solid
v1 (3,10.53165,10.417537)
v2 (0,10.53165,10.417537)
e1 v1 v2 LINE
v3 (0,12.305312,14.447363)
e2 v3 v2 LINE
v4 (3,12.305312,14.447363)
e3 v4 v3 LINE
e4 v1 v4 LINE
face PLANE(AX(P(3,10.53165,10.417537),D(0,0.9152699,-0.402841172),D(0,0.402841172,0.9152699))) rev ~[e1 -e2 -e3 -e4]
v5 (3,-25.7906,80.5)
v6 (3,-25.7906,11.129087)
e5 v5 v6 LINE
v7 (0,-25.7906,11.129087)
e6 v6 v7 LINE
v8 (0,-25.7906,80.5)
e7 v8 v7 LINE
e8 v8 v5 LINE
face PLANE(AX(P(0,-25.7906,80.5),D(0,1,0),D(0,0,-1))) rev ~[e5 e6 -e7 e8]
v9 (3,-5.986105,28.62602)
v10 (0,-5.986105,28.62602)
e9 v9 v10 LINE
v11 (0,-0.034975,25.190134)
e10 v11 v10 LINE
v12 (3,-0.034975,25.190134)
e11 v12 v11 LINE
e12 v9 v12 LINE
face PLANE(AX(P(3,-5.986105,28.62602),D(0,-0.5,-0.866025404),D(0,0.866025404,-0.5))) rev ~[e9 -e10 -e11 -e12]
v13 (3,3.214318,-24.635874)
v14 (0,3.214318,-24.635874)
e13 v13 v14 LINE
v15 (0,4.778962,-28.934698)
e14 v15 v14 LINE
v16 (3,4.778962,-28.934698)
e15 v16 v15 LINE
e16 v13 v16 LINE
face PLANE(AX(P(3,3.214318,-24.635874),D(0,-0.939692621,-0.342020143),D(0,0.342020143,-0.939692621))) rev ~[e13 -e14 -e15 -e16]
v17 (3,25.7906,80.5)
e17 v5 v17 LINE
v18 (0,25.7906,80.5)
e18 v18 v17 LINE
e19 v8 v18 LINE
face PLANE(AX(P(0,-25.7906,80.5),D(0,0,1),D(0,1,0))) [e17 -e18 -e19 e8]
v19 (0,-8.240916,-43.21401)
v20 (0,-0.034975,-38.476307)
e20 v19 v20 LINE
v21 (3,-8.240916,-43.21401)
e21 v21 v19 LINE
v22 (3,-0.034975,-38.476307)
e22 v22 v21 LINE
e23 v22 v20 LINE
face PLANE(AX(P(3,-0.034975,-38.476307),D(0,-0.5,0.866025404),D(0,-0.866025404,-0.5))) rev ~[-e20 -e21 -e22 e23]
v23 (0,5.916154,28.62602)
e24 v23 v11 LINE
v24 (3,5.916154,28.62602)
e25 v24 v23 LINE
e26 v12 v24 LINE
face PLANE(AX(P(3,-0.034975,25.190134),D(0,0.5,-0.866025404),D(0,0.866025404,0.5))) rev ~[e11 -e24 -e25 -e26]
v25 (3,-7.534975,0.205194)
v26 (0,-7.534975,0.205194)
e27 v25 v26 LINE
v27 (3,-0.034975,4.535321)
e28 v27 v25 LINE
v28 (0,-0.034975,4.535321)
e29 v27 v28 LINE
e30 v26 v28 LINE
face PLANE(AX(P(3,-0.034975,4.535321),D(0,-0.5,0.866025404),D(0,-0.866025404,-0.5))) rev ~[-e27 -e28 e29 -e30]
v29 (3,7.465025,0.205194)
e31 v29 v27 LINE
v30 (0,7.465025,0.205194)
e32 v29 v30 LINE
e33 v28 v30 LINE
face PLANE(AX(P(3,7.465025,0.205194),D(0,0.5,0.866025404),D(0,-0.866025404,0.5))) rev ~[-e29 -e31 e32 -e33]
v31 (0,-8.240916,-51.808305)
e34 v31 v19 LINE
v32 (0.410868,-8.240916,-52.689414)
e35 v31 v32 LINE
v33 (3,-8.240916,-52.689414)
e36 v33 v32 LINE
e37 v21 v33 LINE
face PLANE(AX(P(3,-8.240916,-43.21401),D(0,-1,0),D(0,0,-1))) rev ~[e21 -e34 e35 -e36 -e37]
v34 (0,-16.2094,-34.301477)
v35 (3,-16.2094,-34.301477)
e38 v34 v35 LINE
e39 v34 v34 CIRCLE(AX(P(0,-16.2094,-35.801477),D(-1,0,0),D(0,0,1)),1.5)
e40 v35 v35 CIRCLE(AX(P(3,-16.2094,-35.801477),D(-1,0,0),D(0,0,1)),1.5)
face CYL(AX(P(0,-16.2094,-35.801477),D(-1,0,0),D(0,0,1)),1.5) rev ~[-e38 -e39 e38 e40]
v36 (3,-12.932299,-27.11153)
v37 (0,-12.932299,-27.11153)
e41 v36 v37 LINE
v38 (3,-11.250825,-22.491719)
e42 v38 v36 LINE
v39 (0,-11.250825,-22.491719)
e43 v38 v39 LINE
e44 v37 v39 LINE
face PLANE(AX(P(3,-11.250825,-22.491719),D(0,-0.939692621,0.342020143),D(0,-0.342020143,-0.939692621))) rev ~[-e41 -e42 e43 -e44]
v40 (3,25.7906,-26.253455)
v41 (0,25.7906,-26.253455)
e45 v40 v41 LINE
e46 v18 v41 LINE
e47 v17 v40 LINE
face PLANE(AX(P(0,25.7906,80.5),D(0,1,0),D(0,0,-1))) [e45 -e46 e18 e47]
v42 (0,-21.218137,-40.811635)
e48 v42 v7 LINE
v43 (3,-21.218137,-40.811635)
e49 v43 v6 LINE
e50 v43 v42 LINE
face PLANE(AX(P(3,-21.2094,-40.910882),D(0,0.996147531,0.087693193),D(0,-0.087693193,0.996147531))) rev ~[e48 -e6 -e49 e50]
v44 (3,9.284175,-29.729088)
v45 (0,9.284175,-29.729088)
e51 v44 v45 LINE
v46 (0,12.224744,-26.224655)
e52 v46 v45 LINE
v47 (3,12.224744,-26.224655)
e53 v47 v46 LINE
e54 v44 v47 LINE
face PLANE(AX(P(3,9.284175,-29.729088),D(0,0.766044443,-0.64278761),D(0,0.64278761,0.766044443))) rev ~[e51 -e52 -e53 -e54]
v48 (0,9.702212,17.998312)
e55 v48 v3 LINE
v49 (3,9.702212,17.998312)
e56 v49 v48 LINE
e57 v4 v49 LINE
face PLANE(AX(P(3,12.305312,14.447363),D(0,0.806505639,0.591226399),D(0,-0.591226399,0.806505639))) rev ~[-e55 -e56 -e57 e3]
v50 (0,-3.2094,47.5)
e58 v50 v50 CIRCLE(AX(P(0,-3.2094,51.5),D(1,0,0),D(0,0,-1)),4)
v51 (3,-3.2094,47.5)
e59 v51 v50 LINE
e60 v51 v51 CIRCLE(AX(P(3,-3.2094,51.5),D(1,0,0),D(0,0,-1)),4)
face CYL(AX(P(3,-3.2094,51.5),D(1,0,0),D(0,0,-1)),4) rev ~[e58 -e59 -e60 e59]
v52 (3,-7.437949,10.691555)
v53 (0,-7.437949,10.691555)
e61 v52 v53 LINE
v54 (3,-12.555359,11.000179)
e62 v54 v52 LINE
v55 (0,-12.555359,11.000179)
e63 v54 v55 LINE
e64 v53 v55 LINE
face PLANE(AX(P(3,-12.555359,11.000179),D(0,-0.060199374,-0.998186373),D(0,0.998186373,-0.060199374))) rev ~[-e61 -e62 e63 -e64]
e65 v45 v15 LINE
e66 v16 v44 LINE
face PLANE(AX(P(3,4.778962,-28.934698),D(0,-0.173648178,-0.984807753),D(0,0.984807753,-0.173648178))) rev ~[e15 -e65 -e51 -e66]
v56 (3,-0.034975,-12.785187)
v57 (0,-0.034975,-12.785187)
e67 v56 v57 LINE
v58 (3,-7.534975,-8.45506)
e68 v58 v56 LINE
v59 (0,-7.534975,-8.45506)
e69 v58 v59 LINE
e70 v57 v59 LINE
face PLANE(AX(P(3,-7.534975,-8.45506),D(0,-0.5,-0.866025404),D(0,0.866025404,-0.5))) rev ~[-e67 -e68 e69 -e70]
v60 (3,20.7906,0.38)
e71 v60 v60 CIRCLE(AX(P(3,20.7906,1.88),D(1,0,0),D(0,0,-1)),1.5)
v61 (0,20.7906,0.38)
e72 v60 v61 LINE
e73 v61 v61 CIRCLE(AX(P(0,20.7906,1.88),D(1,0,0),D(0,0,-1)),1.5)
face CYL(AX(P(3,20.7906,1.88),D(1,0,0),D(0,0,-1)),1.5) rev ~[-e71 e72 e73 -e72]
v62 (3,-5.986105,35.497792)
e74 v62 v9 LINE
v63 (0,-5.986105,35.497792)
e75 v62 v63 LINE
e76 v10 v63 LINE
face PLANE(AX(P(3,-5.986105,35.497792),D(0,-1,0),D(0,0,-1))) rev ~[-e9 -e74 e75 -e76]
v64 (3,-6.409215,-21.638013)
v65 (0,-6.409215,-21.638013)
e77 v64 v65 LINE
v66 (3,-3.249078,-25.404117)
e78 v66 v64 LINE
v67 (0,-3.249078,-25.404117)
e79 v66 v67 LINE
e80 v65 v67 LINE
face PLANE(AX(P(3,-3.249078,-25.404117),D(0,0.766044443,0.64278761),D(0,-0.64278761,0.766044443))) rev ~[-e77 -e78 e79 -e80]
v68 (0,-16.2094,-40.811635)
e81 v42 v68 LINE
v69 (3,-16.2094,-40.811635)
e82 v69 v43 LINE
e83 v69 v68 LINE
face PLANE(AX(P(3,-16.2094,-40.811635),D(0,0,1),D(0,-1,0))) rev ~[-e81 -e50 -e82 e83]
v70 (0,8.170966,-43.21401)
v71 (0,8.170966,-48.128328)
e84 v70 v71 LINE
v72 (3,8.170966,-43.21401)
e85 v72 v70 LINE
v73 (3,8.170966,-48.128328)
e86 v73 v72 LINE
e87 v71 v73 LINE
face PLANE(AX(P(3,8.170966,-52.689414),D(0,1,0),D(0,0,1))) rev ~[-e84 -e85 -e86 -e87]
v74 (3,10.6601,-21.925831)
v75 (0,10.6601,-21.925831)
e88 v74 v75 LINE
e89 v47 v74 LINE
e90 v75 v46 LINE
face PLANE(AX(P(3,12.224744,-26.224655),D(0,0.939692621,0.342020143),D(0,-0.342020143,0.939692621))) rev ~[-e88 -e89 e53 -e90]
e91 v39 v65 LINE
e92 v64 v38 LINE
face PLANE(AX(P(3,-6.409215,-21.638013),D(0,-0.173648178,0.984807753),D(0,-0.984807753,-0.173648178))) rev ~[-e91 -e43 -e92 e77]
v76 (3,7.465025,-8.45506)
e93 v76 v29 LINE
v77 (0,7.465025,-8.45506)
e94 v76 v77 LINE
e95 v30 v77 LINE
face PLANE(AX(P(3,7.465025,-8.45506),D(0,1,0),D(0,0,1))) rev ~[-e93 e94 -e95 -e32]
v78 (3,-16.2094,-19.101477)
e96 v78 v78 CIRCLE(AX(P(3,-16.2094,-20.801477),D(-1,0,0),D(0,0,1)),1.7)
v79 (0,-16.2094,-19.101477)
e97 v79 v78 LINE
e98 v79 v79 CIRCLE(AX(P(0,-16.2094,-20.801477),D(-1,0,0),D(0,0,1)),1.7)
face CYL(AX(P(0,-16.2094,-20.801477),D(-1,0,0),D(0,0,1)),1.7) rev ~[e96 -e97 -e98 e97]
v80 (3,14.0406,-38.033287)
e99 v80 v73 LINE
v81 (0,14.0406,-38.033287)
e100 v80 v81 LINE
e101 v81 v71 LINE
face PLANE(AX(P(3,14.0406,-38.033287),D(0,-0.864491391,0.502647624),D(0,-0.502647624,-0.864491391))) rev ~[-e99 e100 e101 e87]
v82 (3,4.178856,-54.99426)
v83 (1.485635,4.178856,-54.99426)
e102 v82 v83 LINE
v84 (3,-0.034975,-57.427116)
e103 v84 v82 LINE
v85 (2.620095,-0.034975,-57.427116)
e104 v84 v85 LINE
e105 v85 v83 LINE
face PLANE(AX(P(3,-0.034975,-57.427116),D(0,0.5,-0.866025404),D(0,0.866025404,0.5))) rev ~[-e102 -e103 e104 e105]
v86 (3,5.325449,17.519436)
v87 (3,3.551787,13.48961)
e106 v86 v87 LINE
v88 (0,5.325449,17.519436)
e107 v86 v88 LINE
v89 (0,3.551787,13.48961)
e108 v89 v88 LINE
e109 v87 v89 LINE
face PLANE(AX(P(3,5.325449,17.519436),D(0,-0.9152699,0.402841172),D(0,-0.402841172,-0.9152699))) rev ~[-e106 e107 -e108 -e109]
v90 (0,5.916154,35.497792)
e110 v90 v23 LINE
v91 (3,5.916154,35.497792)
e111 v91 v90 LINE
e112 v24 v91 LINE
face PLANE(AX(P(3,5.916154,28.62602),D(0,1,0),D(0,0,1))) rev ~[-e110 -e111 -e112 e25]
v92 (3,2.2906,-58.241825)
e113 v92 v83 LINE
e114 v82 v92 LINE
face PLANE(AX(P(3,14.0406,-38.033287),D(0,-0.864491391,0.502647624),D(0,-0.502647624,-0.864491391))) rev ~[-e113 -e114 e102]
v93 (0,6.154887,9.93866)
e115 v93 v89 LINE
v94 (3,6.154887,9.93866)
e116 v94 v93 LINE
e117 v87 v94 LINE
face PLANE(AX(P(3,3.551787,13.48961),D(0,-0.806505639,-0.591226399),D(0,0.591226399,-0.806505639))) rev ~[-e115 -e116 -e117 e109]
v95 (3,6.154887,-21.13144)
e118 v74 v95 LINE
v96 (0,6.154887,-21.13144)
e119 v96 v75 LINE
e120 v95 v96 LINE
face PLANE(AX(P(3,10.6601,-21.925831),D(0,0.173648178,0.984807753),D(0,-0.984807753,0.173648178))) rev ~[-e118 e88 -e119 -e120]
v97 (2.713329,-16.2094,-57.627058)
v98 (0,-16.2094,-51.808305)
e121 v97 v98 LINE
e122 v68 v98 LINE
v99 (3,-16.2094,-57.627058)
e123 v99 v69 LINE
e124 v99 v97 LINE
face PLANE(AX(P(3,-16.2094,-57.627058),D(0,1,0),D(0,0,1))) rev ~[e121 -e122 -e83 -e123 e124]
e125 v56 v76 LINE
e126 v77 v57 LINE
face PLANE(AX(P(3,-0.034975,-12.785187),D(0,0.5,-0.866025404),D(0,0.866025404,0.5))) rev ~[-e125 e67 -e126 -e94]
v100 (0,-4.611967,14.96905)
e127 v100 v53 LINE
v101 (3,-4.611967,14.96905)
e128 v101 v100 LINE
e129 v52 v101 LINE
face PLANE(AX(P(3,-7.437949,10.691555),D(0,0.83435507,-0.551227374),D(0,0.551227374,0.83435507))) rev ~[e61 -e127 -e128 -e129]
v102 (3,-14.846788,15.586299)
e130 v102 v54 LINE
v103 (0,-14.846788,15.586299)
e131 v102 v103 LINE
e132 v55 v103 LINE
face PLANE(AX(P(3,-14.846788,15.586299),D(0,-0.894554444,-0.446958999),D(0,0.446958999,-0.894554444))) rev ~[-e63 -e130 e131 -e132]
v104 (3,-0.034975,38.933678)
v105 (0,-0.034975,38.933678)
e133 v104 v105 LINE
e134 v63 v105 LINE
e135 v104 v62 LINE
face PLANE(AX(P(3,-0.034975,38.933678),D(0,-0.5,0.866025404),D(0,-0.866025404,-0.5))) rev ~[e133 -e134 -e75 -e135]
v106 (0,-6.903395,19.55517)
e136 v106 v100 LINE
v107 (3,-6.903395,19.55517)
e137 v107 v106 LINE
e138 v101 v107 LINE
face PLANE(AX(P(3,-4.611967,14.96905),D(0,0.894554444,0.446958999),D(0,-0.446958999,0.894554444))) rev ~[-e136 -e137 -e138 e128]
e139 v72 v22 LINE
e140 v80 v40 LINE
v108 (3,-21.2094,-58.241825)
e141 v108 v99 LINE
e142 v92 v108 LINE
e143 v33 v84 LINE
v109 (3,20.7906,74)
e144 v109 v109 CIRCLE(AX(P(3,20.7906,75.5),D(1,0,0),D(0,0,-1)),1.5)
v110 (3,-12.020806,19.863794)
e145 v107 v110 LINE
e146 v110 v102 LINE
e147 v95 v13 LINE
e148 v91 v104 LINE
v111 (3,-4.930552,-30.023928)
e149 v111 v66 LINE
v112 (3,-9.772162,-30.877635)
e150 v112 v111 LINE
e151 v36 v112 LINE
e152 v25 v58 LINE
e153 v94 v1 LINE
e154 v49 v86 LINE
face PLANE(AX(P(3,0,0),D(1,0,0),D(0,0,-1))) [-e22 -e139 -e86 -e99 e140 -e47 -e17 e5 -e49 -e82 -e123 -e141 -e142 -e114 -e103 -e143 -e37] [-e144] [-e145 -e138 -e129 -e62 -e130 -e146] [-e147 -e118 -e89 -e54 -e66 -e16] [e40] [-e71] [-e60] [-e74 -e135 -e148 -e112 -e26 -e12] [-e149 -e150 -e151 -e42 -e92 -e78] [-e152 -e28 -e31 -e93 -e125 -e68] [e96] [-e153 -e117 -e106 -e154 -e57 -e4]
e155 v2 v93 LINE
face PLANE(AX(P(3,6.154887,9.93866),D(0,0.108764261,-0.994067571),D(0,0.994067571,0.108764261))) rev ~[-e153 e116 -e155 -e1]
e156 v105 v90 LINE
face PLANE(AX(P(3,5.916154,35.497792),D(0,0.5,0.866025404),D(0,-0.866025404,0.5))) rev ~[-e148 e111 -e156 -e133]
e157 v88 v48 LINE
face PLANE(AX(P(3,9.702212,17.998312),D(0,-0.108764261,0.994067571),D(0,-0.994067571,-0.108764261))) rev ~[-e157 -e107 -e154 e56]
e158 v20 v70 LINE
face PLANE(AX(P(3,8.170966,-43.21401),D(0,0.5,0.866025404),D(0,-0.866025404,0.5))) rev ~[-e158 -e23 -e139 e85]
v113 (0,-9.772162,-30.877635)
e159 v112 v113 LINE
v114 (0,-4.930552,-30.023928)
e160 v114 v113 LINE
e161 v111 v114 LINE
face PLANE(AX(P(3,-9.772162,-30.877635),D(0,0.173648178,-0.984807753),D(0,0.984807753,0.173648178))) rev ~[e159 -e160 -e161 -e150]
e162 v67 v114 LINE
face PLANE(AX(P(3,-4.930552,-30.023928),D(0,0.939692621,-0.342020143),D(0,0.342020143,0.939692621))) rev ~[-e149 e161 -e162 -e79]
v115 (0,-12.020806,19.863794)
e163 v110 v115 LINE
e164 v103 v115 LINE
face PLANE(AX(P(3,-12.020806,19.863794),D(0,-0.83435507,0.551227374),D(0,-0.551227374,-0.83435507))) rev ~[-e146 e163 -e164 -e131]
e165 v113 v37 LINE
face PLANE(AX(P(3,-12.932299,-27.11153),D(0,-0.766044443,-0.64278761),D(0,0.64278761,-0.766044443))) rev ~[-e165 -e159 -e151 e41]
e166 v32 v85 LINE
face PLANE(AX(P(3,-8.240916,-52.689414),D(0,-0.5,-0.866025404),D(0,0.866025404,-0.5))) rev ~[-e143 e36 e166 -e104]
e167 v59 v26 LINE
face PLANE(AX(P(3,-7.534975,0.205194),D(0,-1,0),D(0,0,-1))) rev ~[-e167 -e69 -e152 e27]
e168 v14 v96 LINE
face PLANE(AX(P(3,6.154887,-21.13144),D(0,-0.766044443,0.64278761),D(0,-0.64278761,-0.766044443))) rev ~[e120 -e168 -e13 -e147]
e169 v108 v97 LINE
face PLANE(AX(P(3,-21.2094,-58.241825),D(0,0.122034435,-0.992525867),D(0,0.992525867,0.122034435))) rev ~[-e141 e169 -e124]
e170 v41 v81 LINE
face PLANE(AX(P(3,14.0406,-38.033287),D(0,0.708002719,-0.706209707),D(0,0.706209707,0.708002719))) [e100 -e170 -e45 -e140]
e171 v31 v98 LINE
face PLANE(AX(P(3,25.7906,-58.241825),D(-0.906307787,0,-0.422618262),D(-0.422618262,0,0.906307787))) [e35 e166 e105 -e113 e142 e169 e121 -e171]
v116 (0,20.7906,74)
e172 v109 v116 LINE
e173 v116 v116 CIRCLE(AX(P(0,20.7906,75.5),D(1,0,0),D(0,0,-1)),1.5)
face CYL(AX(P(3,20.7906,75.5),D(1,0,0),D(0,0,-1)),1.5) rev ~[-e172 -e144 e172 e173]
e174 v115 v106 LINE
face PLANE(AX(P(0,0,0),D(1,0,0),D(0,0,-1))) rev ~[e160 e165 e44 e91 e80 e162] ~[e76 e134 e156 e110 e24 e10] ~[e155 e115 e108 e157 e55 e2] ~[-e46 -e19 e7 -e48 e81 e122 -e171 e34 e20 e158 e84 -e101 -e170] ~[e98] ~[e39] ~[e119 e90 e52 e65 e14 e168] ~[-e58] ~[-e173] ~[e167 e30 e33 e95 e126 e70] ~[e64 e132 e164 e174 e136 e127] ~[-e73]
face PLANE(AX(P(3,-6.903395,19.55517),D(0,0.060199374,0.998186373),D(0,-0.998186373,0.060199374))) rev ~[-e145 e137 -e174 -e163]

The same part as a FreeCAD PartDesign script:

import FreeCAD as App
import Part
import Sketcher

V = App.Vector
Q = App.Units.Quantity

doc = App.newDocument("Part")
body = doc.addObject("PartDesign::Body", "Body")

# Sketch on YZ plane
sketch1 = doc.addObject("Sketcher::SketchObject", "Sketch")
body.addObject(sketch1)
sketch1.AttachmentSupport = (doc.YZ_Plane, [""])
sketch1.MapMode = "FlatFace"
sketch1.addGeometry([
    Part.LineSegment(V(26, 80, 0), V(-26, 80, 0)),
    Part.LineSegment(V(-26, 80, 0), V(-26, -80, 0)),
    Part.LineSegment(V(-26, -80, 0), V(26, -80, 0)),
    Part.LineSegment(V(26, -80, 0), V(26, 80, 0)),
], False)
sketch1.addConstraint([
    Sketcher.Constraint("Coincident", 0, 2, 1, 1),
    Sketcher.Constraint("Coincident", 1, 2, 2, 1),
    Sketcher.Constraint("Coincident", 2, 2, 3, 1),
    Sketcher.Constraint("Coincident", 3, 2, 0, 1),
    Sketcher.Constraint("Horizontal", 0),
    Sketcher.Constraint("Vertical", 1),
    Sketcher.Constraint("Horizontal", 2),
    Sketcher.Constraint("Vertical", 3),
    Sketcher.Constraint("Symmetric", 0, 2, 2, 2, -1, 1),
    Sketcher.Constraint("DistanceY", 1, 2, 1, 1, Q("161 mm")),
    Sketcher.Constraint("DistanceX", 0, 2, 0, 1, Q("51.5812 mm")),
])
pad1 = doc.addObject("PartDesign::Pad", "Pad")
body.addObject(pad1)
pad1.Profile = sketch1
pad1.Length = 3

# Sketch on YZ plane
sketch2 = doc.addObject("Sketcher::SketchObject", "Sketch001")
body.addObject(sketch2)
sketch2.AttachmentSupport = (doc.YZ_Plane, [""])
sketch2.MapMode = "FlatFace"
sketch2.AttachmentOffset = App.Placement(V(0, 0, 3), App.Rotation())
sketch2.addGeometry(Part.Circle(V(20.8, 75.5, 0), V(0, 0, 1), 1.5), False)
sketch2.addConstraint([
    Sketcher.Constraint("Diameter", 0, Q("3 mm")),
    Sketcher.Constraint("DistanceY", -1, 1, 0, 3, Q("75.5 mm")),
    Sketcher.Constraint("DistanceX", -1, 1, 0, 3, Q("20.7906 mm")),
])
pocket1 = doc.addObject("PartDesign::Pocket", "Pocket")
body.addObject(pocket1)
pocket1.Profile = sketch2
pocket1.Type = "UpToFirst"

# Sketch on YZ plane
sketch3 = doc.addObject("Sketcher::SketchObject", "Sketch002")
body.addObject(sketch3)
sketch3.AttachmentSupport = (doc.YZ_Plane, [""])
sketch3.MapMode = "FlatFace"
sketch3.AttachmentOffset = App.Placement(V(0, 0, 3), App.Rotation())
sketch3.addGeometry(Part.Circle(V(20.8, 1.9, 0), V(0, 0, 1), 1.5), False)
sketch3.addConstraint([
    Sketcher.Constraint("Diameter", 0, Q("3 mm")),
    Sketcher.Constraint("DistanceY", -1, 1, 0, 3, Q("1.88 mm")),
    Sketcher.Constraint("DistanceX", -1, 1, 0, 3, Q("20.7906 mm")),
])
pocket2 = doc.addObject("PartDesign::Pocket", "Pocket001")
body.addObject(pocket2)
pocket2.Profile = sketch3
pocket2.Type = "UpToFirst"

# Sketch on YZ plane
sketch4 = doc.addObject("Sketcher::SketchObject", "Sketch003")
body.addObject(sketch4)
sketch4.AttachmentSupport = (doc.YZ_Plane, [""])
sketch4.MapMode = "FlatFace"
sketch4.AttachmentOffset = App.Placement(V(0, 0, 3), App.Rotation())
sketch4.addGeometry(Part.Circle(V(-3.2, 51.5, 0), V(0, 0, 1), 4), False)
sketch4.addConstraint([
    Sketcher.Constraint("Diameter", 0, Q("8 mm")),
    Sketcher.Constraint("DistanceY", -1, 1, 0, 3, Q("51.5 mm")),
    Sketcher.Constraint("DistanceX", 0, 3, -1, 1, Q("3.2094 mm")),
])
pocket3 = doc.addObject("PartDesign::Pocket", "Pocket002")
body.addObject(pocket3)
pocket3.Profile = sketch4
pocket3.Type = "UpToFirst"

# Sketch on YZ plane
sketch5 = doc.addObject("Sketcher::SketchObject", "Sketch004")
body.addObject(sketch5)
sketch5.AttachmentSupport = (doc.YZ_Plane, [""])
sketch5.MapMode = "FlatFace"
sketch5.addGeometry(Part.Circle(V(-16.2, -35.8, 0), V(0, 0, 1), 1.5), False)
sketch5.addConstraint([
    Sketcher.Constraint("Diameter", 0, Q("3 mm")),
    Sketcher.Constraint("DistanceX", 0, 3, -1, 1, Q("16.2094 mm")),
    Sketcher.Constraint("DistanceY", 0, 3, -1, 1, Q("35.801477 mm")),
])
pocket4 = doc.addObject("PartDesign::Pocket", "Pocket003")
body.addObject(pocket4)
pocket4.Profile = sketch5
pocket4.Type = "UpToFirst"
pocket4.Reversed = True

# Sketch on XZ plane
sketch6 = doc.addObject("Sketcher::SketchObject", "Sketch005")
body.addObject(sketch6)
sketch6.AttachmentSupport = (doc.XZ_Plane, [""])
sketch6.MapMode = "FlatFace"
sketch6.AttachmentOffset = App.Placement(V(0, 0, -25.7906), App.Rotation())
sketch6.addGeometry([
    Part.LineSegment(V(3, -80.5, 0), V(0, -80.5, 0)),
    Part.LineSegment(V(0, -80.5, 0), V(0, -51.8, 0)),
    Part.LineSegment(V(0, -51.8, 0), V(3, -58.2, 0)),
    Part.LineSegment(V(3, -58.2, 0), V(3, -80.5, 0)),
], False)
sketch6.addConstraint([
    Sketcher.Constraint("Coincident", 0, 2, 1, 1),
    Sketcher.Constraint("Coincident", 1, 2, 2, 1),
    Sketcher.Constraint("Coincident", 2, 2, 3, 1),
    Sketcher.Constraint("Coincident", 3, 2, 0, 1),
    Sketcher.Constraint("Horizontal", 0),
    Sketcher.Constraint("Vertical", 1),
    Sketcher.Constraint("Vertical", 3),
    Sketcher.Constraint("PointOnObject", 0, 2, -2),
    Sketcher.Constraint("DistanceX", 0, 2, 0, 1, Q("3 mm")),
    Sketcher.Constraint("Angle", 2, Q("-65 deg")),
    Sketcher.Constraint("DistanceY", 0, 2, -1, 1, Q("80.5 mm")),
    Sketcher.Constraint("DistanceY", 1, 1, 1, 2, Q("28.691695 mm")),
])
pocket5 = doc.addObject("PartDesign::Pocket", "Pocket004")
body.addObject(pocket5)
pocket5.Profile = sketch6
pocket5.Type = "UpToFirst"
pocket5.Reversed = True

# Sketch on YZ plane
sketch7 = doc.addObject("Sketcher::SketchObject", "Sketch006")
body.addObject(sketch7)
sketch7.AttachmentSupport = (doc.YZ_Plane, [""])
sketch7.MapMode = "FlatFace"
sketch7.AttachmentOffset = App.Placement(V(0, 0, 3), App.Rotation())
sketch7.addGeometry([
    Part.LineSegment(V(-25.8, -58.2, 0), V(-21.2, -58.2, 0)),
    Part.LineSegment(V(-21.2, -58.2, 0), V(-21.2, -40.9, 0)),
    Part.LineSegment(V(-21.2, -40.9, 0), V(-25.8, 11.1, 0)),
    Part.LineSegment(V(-25.8, 11.1, 0), V(-25.8, -58.2, 0)),
], False)
sketch7.addConstraint([
    Sketcher.Constraint("Coincident", 0, 2, 1, 1),
    Sketcher.Constraint("Coincident", 1, 2, 2, 1),
    Sketcher.Constraint("Coincident", 2, 2, 3, 1),
    Sketcher.Constraint("Coincident", 3, 2, 0, 1),
    Sketcher.Constraint("Horizontal", 0),
    Sketcher.Constraint("Vertical", 1),
    Sketcher.Constraint("Vertical", 3),
    Sketcher.Constraint("DistanceX", 0, 1, 0, 2, Q("4.5812 mm")),
    Sketcher.Constraint("DistanceX", 0, 2, -1, 1, Q("21.2094 mm")),
    Sketcher.Constraint("DistanceY", 1, 1, 1, 2, Q("17.330944 mm")),
    Sketcher.Constraint("DistanceY", 3, 2, 3, 1, Q("69.370913 mm")),
    Sketcher.Constraint("DistanceY", 1, 2, -1, 1, Q("40.910882 mm")),
])
pocket6 = doc.addObject("PartDesign::Pocket", "Pocket005")
body.addObject(pocket6)
pocket6.Profile = sketch7
pocket6.Length = 3

# Sketch on YZ plane
sketch8 = doc.addObject("Sketcher::SketchObject", "Sketch007")
body.addObject(sketch8)
sketch8.AttachmentSupport = (doc.YZ_Plane, [""])
sketch8.MapMode = "FlatFace"
sketch8.AttachmentOffset = App.Placement(V(0, 0, 3), App.Rotation())
sketch8.addGeometry([
    Part.LineSegment(V(26, -58, 0), V(26, -38, 0)),
    Part.LineSegment(V(26, -38, 0), V(14, -38, 0)),
    Part.LineSegment(V(14, -38, 0), V(2, -58, 0)),
    Part.LineSegment(V(2, -58, 0), V(26, -58, 0)),
], False)
sketch8.addConstraint([
    Sketcher.Constraint("Coincident", 0, 2, 1, 1),
    Sketcher.Constraint("Coincident", 1, 2, 2, 1),
    Sketcher.Constraint("Coincident", 2, 2, 3, 1),
    Sketcher.Constraint("Coincident", 3, 2, 0, 1),
    Sketcher.Constraint("Vertical", 0),
    Sketcher.Constraint("Horizontal", 1),
    Sketcher.Constraint("Horizontal", 3),
    Sketcher.Constraint("DistanceX", 3, 1, 3, 2, Q("23.5 mm")),
    Sketcher.Constraint("DistanceX", 1, 2, 1, 1, Q("11.75 mm")),
    Sketcher.Constraint("DistanceY", 0, 1, 0, 2, Q("20.208538 mm")),
    Sketcher.Constraint("DistanceX", -1, 1, 0, 2, Q("25.7906 mm")),
    Sketcher.Constraint("DistanceY", 0, 2, -1, 1, Q("38.033287 mm")),
])
pocket7 = doc.addObject("PartDesign::Pocket", "Pocket006")
body.addObject(pocket7)
pocket7.Profile = sketch8
pocket7.Length = 10

# Sketch on YZ plane
sketch9 = doc.addObject("Sketcher::SketchObject", "Sketch008")
body.addObject(sketch9)
sketch9.AttachmentSupport = (doc.YZ_Plane, [""])
sketch9.MapMode = "FlatFace"
sketch9.AttachmentOffset = App.Placement(V(0, 0, 3), App.Rotation())
sketch9.addGeometry([
    Part.LineSegment(V(14, -38, 0), V(26, -38, 0)),
    Part.LineSegment(V(26, -38, 0), V(26, -26, 0)),
    Part.LineSegment(V(26, -26, 0), V(14, -38, 0)),
], False)
sketch9.addConstraint([
    Sketcher.Constraint("Coincident", 0, 2, 1, 1),
    Sketcher.Constraint("Coincident", 1, 2, 2, 1),
    Sketcher.Constraint("Coincident", 2, 2, 0, 1),
    Sketcher.Constraint("Horizontal", 0),
    Sketcher.Constraint("Vertical", 1),
    Sketcher.Constraint("DistanceX", 0, 1, 0, 2, Q("11.75 mm")),
    Sketcher.Constraint("DistanceX", -1, 1, 0, 2, Q("25.7906 mm")),
    Sketcher.Constraint("DistanceY", 1, 1, 1, 2, Q("11.779832 mm")),
    Sketcher.Constraint("DistanceY", 0, 2, -1, 1, Q("38.033287 mm")),
])
pocket8 = doc.addObject("PartDesign::Pocket", "Pocket007")
body.addObject(pocket8)
pocket8.Profile = sketch9
pocket8.Type = "UpToFirst"

# Sketch on YZ plane
sketch10 = doc.addObject("Sketcher::SketchObject", "Sketch009")
body.addObject(sketch10)
sketch10.AttachmentSupport = (doc.YZ_Plane, [""])
sketch10.MapMode = "FlatFace"
sketch10.AttachmentOffset = App.Placement(V(0, 0, 3), App.Rotation())
sketch10.addGeometry([
    Part.LineSegment(V(0, 39, 0), V(-6, 35, 0)),  # 0
    Part.LineSegment(V(-6, 35, 0), V(-6, 29, 0)),  # 1
    Part.LineSegment(V(-6, 29, 0), V(0, 25, 0)),  # 2
    Part.LineSegment(V(0, 25, 0), V(6, 29, 0)),  # 3
    Part.LineSegment(V(6, 29, 0), V(6, 35, 0)),  # 4
    Part.LineSegment(V(6, 35, 0), V(0, 39, 0)),  # 5
], False)
sketch10.addConstraint([
    Sketcher.Constraint("Coincident", 0, 2, 1, 1),
    Sketcher.Constraint("Coincident", 1, 2, 2, 1),
    Sketcher.Constraint("Coincident", 2, 2, 3, 1),
    Sketcher.Constraint("Coincident", 3, 2, 4, 1),
    Sketcher.Constraint("Coincident", 4, 2, 5, 1),
    Sketcher.Constraint("Coincident", 5, 2, 0, 1),
    Sketcher.Constraint("Vertical", 1),
    Sketcher.Constraint("Vertical", 4),
    Sketcher.Constraint("Parallel", 0, 3),
    Sketcher.Constraint("Parallel", 2, 5),
    Sketcher.Constraint("Horizontal", 1, 2, 3, 2),
    Sketcher.Constraint("Horizontal", 0, 2, 4, 2),
    Sketcher.Constraint("Vertical", 2, 2, 5, 2),
    Sketcher.Constraint("Angle", 0, Q("-150 deg")),
    Sketcher.Constraint("DistanceY", 1, 2, 1, 1, Q("6.871772 mm")),
    Sketcher.Constraint("DistanceY", -1, 1, 1, 2, Q("28.62602 mm")),
    Sketcher.Constraint("DistanceY", -1, 1, 5, 2, Q("38.933678 mm")),
    Sketcher.Constraint("DistanceX", 0, 2, -1, 1, Q("5.986105 mm")),
])
pocket9 = doc.addObject("PartDesign::Pocket", "Pocket008")
body.addObject(pocket9)
pocket9.Profile = sketch10
pocket9.Type = "UpToFirst"

# Sketch on YZ plane
sketch11 = doc.addObject("Sketcher::SketchObject", "Sketch010")
body.addObject(sketch11)
sketch11.AttachmentSupport = (doc.YZ_Plane, [""])
sketch11.MapMode = "FlatFace"
sketch11.AttachmentOffset = App.Placement(V(0, 0, 3), App.Rotation())
sketch11.addGeometry([
    Part.LineSegment(V(0, -13, 0), V(7, -8, 0)),  # 0
    Part.LineSegment(V(7, -8, 0), V(7, 0, 0)),  # 1
    Part.LineSegment(V(7, 0, 0), V(0, 5, 0)),  # 2
    Part.LineSegment(V(0, 5, 0), V(-8, 0, 0)),  # 3
    Part.LineSegment(V(-8, 0, 0), V(-8, -8, 0)),  # 4
    Part.LineSegment(V(-8, -8, 0), V(0, -13, 0)),  # 5
], False)
sketch11.addConstraint([
    Sketcher.Constraint("Coincident", 0, 2, 1, 1),
    Sketcher.Constraint("Coincident", 1, 2, 2, 1),
    Sketcher.Constraint("Coincident", 2, 2, 3, 1),
    Sketcher.Constraint("Coincident", 3, 2, 4, 1),
    Sketcher.Constraint("Coincident", 4, 2, 5, 1),
    Sketcher.Constraint("Coincident", 5, 2, 0, 1),
    Sketcher.Constraint("Vertical", 1),
    Sketcher.Constraint("Vertical", 4),
    Sketcher.Constraint("Parallel", 0, 3),
    Sketcher.Constraint("Parallel", 2, 5),
    Sketcher.Constraint("Horizontal", 1, 2, 3, 2),
    Sketcher.Constraint("Horizontal", 0, 2, 4, 2),
    Sketcher.Constraint("Vertical", 2, 2, 5, 2),
    Sketcher.Constraint("Angle", 0, Q("30 deg")),
    Sketcher.Constraint("DistanceX", 3, 2, 1, 2, Q("15 mm")),
    Sketcher.Constraint("DistanceY", 1, 1, 1, 2, Q("8.660254 mm")),
    Sketcher.Constraint("DistanceY", 0, 2, -1, 1, Q("8.45506 mm")),
    Sketcher.Constraint("DistanceX", -1, 1, 0, 2, Q("7.465025 mm")),
])
pocket10 = doc.addObject("PartDesign::Pocket", "Pocket009")
body.addObject(pocket10)
pocket10.Profile = sketch11
pocket10.Type = "UpToFirst"

# Sketch on YZ plane
sketch12 = doc.addObject("Sketcher::SketchObject", "Sketch011")
body.addObject(sketch12)
sketch12.AttachmentSupport = (doc.YZ_Plane, [""])
sketch12.MapMode = "FlatFace"
sketch12.AttachmentOffset = App.Placement(V(0, 0, 3), App.Rotation())
sketch12.addGeometry([
    Part.LineSegment(V(9.3, -29.7, 0), V(12.2, -26.2, 0)),  # 0
    Part.LineSegment(V(12.2, -26.2, 0), V(10.7, -21.9, 0)),  # 1
    Part.LineSegment(V(10.7, -21.9, 0), V(6.2, -21.1, 0)),  # 2
    Part.LineSegment(V(6.2, -21.1, 0), V(3.2, -24.6, 0)),  # 3
    Part.LineSegment(V(3.2, -24.6, 0), V(4.8, -28.9, 0)),  # 4
    Part.LineSegment(V(4.8, -28.9, 0), V(9.3, -29.7, 0)),  # 5
], False)
sketch12.addConstraint([
    Sketcher.Constraint("Coincident", 0, 2, 1, 1),
    Sketcher.Constraint("Coincident", 1, 2, 2, 1),
    Sketcher.Constraint("Coincident", 2, 2, 3, 1),
    Sketcher.Constraint("Coincident", 3, 2, 4, 1),
    Sketcher.Constraint("Coincident", 4, 2, 5, 1),
    Sketcher.Constraint("Coincident", 5, 2, 0, 1),
    Sketcher.Constraint("Parallel", 0, 3),
    Sketcher.Constraint("Parallel", 1, 4),
    Sketcher.Constraint("Parallel", 2, 5),
    Sketcher.Constraint("Equal", 0, 1),
    Sketcher.Constraint("Equal", 1, 2),
    Sketcher.Constraint("Equal", 2, 3),
    Sketcher.Constraint("Angle", 0, Q("50 deg")),
    Sketcher.Constraint("Angle", 1, Q("110 deg")),
    Sketcher.Constraint("Angle", 2, Q("170 deg")),
    Sketcher.Constraint("DistanceX", -1, 1, 1, 2, Q("10.6601 mm")),
    Sketcher.Constraint("DistanceY", 1, 2, -1, 1, Q("21.925831 mm")),
    Sketcher.Constraint("DistanceY", 2, 2, -1, 1, Q("21.13144 mm")),
])
pocket11 = doc.addObject("PartDesign::Pocket", "Pocket010")
body.addObject(pocket11)
pocket11.Profile = sketch12
pocket11.Type = "UpToFirst"

# Sketch on YZ plane
sketch13 = doc.addObject("Sketcher::SketchObject", "Sketch012")
body.addObject(sketch13)
sketch13.AttachmentSupport = (doc.YZ_Plane, [""])
sketch13.MapMode = "FlatFace"
sketch13.AttachmentOffset = App.Placement(V(0, 0, 3), App.Rotation())
sketch13.addGeometry([
    Part.LineSegment(V(-12, 20, 0), V(-15, 16, 0)),  # 0
    Part.LineSegment(V(-15, 16, 0), V(-13, 11, 0)),  # 1
    Part.LineSegment(V(-13, 11, 0), V(-7, 11, 0)),  # 2
    Part.LineSegment(V(-7, 11, 0), V(-5, 15, 0)),  # 3
    Part.LineSegment(V(-5, 15, 0), V(-7, 20, 0)),  # 4
    Part.LineSegment(V(-7, 20, 0), V(-12, 20, 0)),  # 5
], False)
sketch13.addConstraint([
    Sketcher.Constraint("Coincident", 0, 2, 1, 1),
    Sketcher.Constraint("Coincident", 1, 2, 2, 1),
    Sketcher.Constraint("Coincident", 2, 2, 3, 1),
    Sketcher.Constraint("Coincident", 3, 2, 4, 1),
    Sketcher.Constraint("Coincident", 4, 2, 5, 1),
    Sketcher.Constraint("Coincident", 5, 2, 0, 1),
    Sketcher.Constraint("Parallel", 0, 3),
    Sketcher.Constraint("Parallel", 1, 4),
    Sketcher.Constraint("Parallel", 2, 5),
    Sketcher.Constraint("Equal", 0, 1),
    Sketcher.Constraint("Equal", 1, 2),
    Sketcher.Constraint("Equal", 2, 3),
    Sketcher.Constraint("DistanceY", -1, 1, 0, 2, Q("15.586299 mm")),
    Sketcher.Constraint("Distance", 0, Q("5.126708 mm")),
    Sketcher.Constraint("DistanceX", 1, 2, -1, 1, Q("12.555359 mm")),
    Sketcher.Constraint("DistanceY", -1, 1, 1, 2, Q("11.000179 mm")),
    Sketcher.Constraint("DistanceX", 2, 2, -1, 1, Q("7.437949 mm")),
    Sketcher.Constraint("DistanceY", -1, 1, 3, 2, Q("14.96905 mm")),
])
pocket12 = doc.addObject("PartDesign::Pocket", "Pocket011")
body.addObject(pocket12)
pocket12.Profile = sketch13
pocket12.Type = "UpToFirst"

# Sketch on YZ plane
sketch14 = doc.addObject("Sketcher::SketchObject", "Sketch013")
body.addObject(sketch14)
sketch14.AttachmentSupport = (doc.YZ_Plane, [""])
sketch14.MapMode = "FlatFace"
sketch14.AttachmentOffset = App.Placement(V(0, 0, 3), App.Rotation())
sketch14.addGeometry([
    Part.LineSegment(V(9.7, 18, 0), V(5.3, 17.5, 0)),  # 0
    Part.LineSegment(V(5.3, 17.5, 0), V(3.6, 13.5, 0)),  # 1
    Part.LineSegment(V(3.6, 13.5, 0), V(6.2, 9.9, 0)),  # 2
    Part.LineSegment(V(6.2, 9.9, 0), V(10.5, 10.4, 0)),  # 3
    Part.LineSegment(V(10.5, 10.4, 0), V(12.3, 14.4, 0)),  # 4
    Part.LineSegment(V(12.3, 14.4, 0), V(9.7, 18, 0)),  # 5
], False)
sketch14.addConstraint([
    Sketcher.Constraint("Coincident", 0, 2, 1, 1),
    Sketcher.Constraint("Coincident", 1, 2, 2, 1),
    Sketcher.Constraint("Coincident", 2, 2, 3, 1),
    Sketcher.Constraint("Coincident", 3, 2, 4, 1),
    Sketcher.Constraint("Coincident", 4, 2, 5, 1),
    Sketcher.Constraint("Coincident", 5, 2, 0, 1),
    Sketcher.Constraint("Parallel", 0, 3),
    Sketcher.Constraint("Parallel", 1, 4),
    Sketcher.Constraint("Parallel", 2, 5),
    Sketcher.Constraint("Equal", 0, 1),
    Sketcher.Constraint("Equal", 1, 2),
    Sketcher.Constraint("Equal", 2, 3),
    Sketcher.Constraint("DistanceX", 1, 2, 2, 2, Q("2.6031 mm")),
    Sketcher.Constraint("DistanceX", 0, 2, 3, 2, Q("5.206201 mm")),
    Sketcher.Constraint("DistanceY", 3, 2, 0, 2, Q("7.101899 mm")),
    Sketcher.Constraint("DistanceX", -1, 1, 0, 2, Q("5.325449 mm")),
    Sketcher.Constraint("DistanceY", -1, 1, 1, 2, Q("13.48961 mm")),
    Sketcher.Constraint("DistanceY", -1, 1, 2, 2, Q("9.93866 mm")),
])
pocket13 = doc.addObject("PartDesign::Pocket", "Pocket012")
body.addObject(pocket13)
pocket13.Profile = sketch14
pocket13.Type = "UpToFirst"

# Sketch on YZ plane
sketch15 = doc.addObject("Sketcher::SketchObject", "Sketch014")
body.addObject(sketch15)
sketch15.AttachmentSupport = (doc.YZ_Plane, [""])
sketch15.MapMode = "FlatFace"
sketch15.AttachmentOffset = App.Placement(V(0, 0, 3), App.Rotation())
sketch15.addGeometry([
    Part.LineSegment(V(-9.8, -30.9, 0), V(-4.9, -30, 0)),  # 0
    Part.LineSegment(V(-4.9, -30, 0), V(-3.2, -25.4, 0)),  # 1
    Part.LineSegment(V(-3.2, -25.4, 0), V(-6.4, -21.6, 0)),  # 2
    Part.LineSegment(V(-6.4, -21.6, 0), V(-11.3, -22.5, 0)),  # 3
    Part.LineSegment(V(-11.3, -22.5, 0), V(-12.9, -27.1, 0)),  # 4
    Part.LineSegment(V(-12.9, -27.1, 0), V(-9.8, -30.9, 0)),  # 5
], False)
sketch15.addConstraint([
    Sketcher.Constraint("Coincident", 0, 2, 1, 1),
    Sketcher.Constraint("Coincident", 1, 2, 2, 1),
    Sketcher.Constraint("Coincident", 2, 2, 3, 1),
    Sketcher.Constraint("Coincident", 3, 2, 4, 1),
    Sketcher.Constraint("Coincident", 4, 2, 5, 1),
    Sketcher.Constraint("Coincident", 5, 2, 0, 1),
    Sketcher.Constraint("Parallel", 0, 3),
    Sketcher.Constraint("Parallel", 1, 4),
    Sketcher.Constraint("Parallel", 2, 5),
    Sketcher.Constraint("Equal", 0, 1),
    Sketcher.Constraint("Equal", 1, 2),
    Sketcher.Constraint("Equal", 2, 3),
    Sketcher.Constraint("Angle", 0, Q("10 deg")),
    Sketcher.Constraint("Angle", 1, Q("70 deg")),
    Sketcher.Constraint("Angle", 2, Q("130 deg")),
    Sketcher.Constraint("Distance", 0, Q("4.9163 mm")),
    Sketcher.Constraint("DistanceX", 4, 2, -1, 1, Q("12.932299 mm")),
    Sketcher.Constraint("DistanceY", 0, 2, -1, 1, Q("30.023928 mm")),
])
pocket14 = doc.addObject("PartDesign::Pocket", "Pocket013")
body.addObject(pocket14)
pocket14.Profile = sketch15
pocket14.Type = "UpToFirst"

# Sketch on YZ plane
sketch16 = doc.addObject("Sketcher::SketchObject", "Sketch015")
body.addObject(sketch16)
sketch16.AttachmentSupport = (doc.YZ_Plane, [""])
sketch16.MapMode = "FlatFace"
sketch16.AttachmentOffset = App.Placement(V(0, 0, 3), App.Rotation())
sketch16.addGeometry([
    Part.LineSegment(V(0, -57, 0), V(8, -53, 0)),  # 0
    Part.LineSegment(V(8, -53, 0), V(8, -43, 0)),  # 1
    Part.LineSegment(V(8, -43, 0), V(0, -38, 0)),  # 2
    Part.LineSegment(V(0, -38, 0), V(-8, -43, 0)),  # 3
    Part.LineSegment(V(-8, -43, 0), V(-8, -53, 0)),  # 4
    Part.LineSegment(V(-8, -53, 0), V(0, -57, 0)),  # 5
], False)
sketch16.addConstraint([
    Sketcher.Constraint("Coincident", 0, 2, 1, 1),
    Sketcher.Constraint("Coincident", 1, 2, 2, 1),
    Sketcher.Constraint("Coincident", 2, 2, 3, 1),
    Sketcher.Constraint("Coincident", 3, 2, 4, 1),
    Sketcher.Constraint("Coincident", 4, 2, 5, 1),
    Sketcher.Constraint("Coincident", 5, 2, 0, 1),
    Sketcher.Constraint("Vertical", 1),
    Sketcher.Constraint("Vertical", 4),
    Sketcher.Constraint("Parallel", 0, 3),
    Sketcher.Constraint("Parallel", 2, 5),
    Sketcher.Constraint("Horizontal", 1, 2, 3, 2),
    Sketcher.Constraint("Horizontal", 0, 2, 4, 2),
    Sketcher.Constraint("Vertical", 2, 2, 5, 2),
    Sketcher.Constraint("Angle", 0, Q("30 deg")),
    Sketcher.Constraint("DistanceY", 1, 1, 1, 2, Q("9.475404 mm")),
    Sketcher.Constraint("DistanceY", 1, 2, -1, 1, Q("43.21401 mm")),
    Sketcher.Constraint("DistanceX", 2, 2, 1, 2, Q("8.205941 mm")),
    Sketcher.Constraint("DistanceX", -1, 1, 0, 2, Q("8.170966 mm")),
])
pocket15 = doc.addObject("PartDesign::Pocket", "Pocket014")
body.addObject(pocket15)
pocket15.Profile = sketch16
pocket15.Type = "UpToFirst"

# Sketch on YZ plane
sketch17 = doc.addObject("Sketcher::SketchObject", "Sketch016")
body.addObject(sketch17)
sketch17.AttachmentSupport = (doc.YZ_Plane, [""])
sketch17.MapMode = "FlatFace"
sketch17.addGeometry(Part.Circle(V(-16.2, -20.8, 0), V(0, 0, 1), 1.7), False)
sketch17.addConstraint([
    Sketcher.Constraint("Diameter", 0, Q("3.4 mm")),
    Sketcher.Constraint("DistanceX", 0, 3, -1, 1, Q("16.2094 mm")),
    Sketcher.Constraint("DistanceY", 0, 3, -1, 1, Q("20.801477 mm")),
])
pocket16 = doc.addObject("PartDesign::Pocket", "Pocket015")
body.addObject(pocket16)
pocket16.Profile = sketch17
pocket16.Length = 10
pocket16.Reversed = True

# Sketch on YZ plane
sketch18 = doc.addObject("Sketcher::SketchObject", "Sketch017")
body.addObject(sketch18)
sketch18.AttachmentSupport = (doc.YZ_Plane, [""])
sketch18.MapMode = "FlatFace"
sketch18.AttachmentOffset = App.Placement(V(0, 0, 3), App.Rotation())
sketch18.addGeometry([
    Part.LineSegment(V(-21.21, -58.24, 0), V(-16.21, -57.63, 0)),  # 0
    Part.LineSegment(V(-16.21, -57.63, 0), V(-16.21, -40.81, 0)),  # 1
    Part.LineSegment(V(-16.21, -40.81, 0), V(-21.22, -40.81, 0)),  # 2
    Part.LineSegment(V(-21.22, -40.81, 0), V(-21.21, -40.91, 0)),  # 3
    Part.LineSegment(V(-21.21, -40.91, 0), V(-21.21, -58.24, 0)),  # 4
], False)
sketch18.addConstraint([
    Sketcher.Constraint("Coincident", 0, 2, 1, 1),
    Sketcher.Constraint("Coincident", 1, 2, 2, 1),
    Sketcher.Constraint("Coincident", 2, 2, 3, 1),
    Sketcher.Constraint("Coincident", 3, 2, 4, 1),
    Sketcher.Constraint("Coincident", 4, 2, 0, 1),
    Sketcher.Constraint("Vertical", 1),
    Sketcher.Constraint("Horizontal", 2),
    Sketcher.Constraint("Vertical", 4),
    Sketcher.Constraint("DistanceX", 3, 2, 1, 2, Q("5 mm")),
    Sketcher.Constraint("DistanceX", 0, 2, -1, 1, Q("16.2094 mm")),
    Sketcher.Constraint("Distance", 3, Q("0.099631 mm")),
    Sketcher.Constraint("DistanceX", 2, 2, 2, 1, Q("5.008737 mm")),
    Sketcher.Constraint("DistanceY", 1, 1, 1, 2, Q("16.815424 mm")),
    Sketcher.Constraint("DistanceY", 4, 2, 4, 1, Q("17.330944 mm")),
    Sketcher.Constraint("DistanceY", 0, 2, -1, 1, Q("57.627058 mm")),
])
pocket17 = doc.addObject("PartDesign::Pocket", "Pocket016")
body.addObject(pocket17)
pocket17.Profile = sketch18
pocket17.Type = "UpToFirst"

doc.recompute()
